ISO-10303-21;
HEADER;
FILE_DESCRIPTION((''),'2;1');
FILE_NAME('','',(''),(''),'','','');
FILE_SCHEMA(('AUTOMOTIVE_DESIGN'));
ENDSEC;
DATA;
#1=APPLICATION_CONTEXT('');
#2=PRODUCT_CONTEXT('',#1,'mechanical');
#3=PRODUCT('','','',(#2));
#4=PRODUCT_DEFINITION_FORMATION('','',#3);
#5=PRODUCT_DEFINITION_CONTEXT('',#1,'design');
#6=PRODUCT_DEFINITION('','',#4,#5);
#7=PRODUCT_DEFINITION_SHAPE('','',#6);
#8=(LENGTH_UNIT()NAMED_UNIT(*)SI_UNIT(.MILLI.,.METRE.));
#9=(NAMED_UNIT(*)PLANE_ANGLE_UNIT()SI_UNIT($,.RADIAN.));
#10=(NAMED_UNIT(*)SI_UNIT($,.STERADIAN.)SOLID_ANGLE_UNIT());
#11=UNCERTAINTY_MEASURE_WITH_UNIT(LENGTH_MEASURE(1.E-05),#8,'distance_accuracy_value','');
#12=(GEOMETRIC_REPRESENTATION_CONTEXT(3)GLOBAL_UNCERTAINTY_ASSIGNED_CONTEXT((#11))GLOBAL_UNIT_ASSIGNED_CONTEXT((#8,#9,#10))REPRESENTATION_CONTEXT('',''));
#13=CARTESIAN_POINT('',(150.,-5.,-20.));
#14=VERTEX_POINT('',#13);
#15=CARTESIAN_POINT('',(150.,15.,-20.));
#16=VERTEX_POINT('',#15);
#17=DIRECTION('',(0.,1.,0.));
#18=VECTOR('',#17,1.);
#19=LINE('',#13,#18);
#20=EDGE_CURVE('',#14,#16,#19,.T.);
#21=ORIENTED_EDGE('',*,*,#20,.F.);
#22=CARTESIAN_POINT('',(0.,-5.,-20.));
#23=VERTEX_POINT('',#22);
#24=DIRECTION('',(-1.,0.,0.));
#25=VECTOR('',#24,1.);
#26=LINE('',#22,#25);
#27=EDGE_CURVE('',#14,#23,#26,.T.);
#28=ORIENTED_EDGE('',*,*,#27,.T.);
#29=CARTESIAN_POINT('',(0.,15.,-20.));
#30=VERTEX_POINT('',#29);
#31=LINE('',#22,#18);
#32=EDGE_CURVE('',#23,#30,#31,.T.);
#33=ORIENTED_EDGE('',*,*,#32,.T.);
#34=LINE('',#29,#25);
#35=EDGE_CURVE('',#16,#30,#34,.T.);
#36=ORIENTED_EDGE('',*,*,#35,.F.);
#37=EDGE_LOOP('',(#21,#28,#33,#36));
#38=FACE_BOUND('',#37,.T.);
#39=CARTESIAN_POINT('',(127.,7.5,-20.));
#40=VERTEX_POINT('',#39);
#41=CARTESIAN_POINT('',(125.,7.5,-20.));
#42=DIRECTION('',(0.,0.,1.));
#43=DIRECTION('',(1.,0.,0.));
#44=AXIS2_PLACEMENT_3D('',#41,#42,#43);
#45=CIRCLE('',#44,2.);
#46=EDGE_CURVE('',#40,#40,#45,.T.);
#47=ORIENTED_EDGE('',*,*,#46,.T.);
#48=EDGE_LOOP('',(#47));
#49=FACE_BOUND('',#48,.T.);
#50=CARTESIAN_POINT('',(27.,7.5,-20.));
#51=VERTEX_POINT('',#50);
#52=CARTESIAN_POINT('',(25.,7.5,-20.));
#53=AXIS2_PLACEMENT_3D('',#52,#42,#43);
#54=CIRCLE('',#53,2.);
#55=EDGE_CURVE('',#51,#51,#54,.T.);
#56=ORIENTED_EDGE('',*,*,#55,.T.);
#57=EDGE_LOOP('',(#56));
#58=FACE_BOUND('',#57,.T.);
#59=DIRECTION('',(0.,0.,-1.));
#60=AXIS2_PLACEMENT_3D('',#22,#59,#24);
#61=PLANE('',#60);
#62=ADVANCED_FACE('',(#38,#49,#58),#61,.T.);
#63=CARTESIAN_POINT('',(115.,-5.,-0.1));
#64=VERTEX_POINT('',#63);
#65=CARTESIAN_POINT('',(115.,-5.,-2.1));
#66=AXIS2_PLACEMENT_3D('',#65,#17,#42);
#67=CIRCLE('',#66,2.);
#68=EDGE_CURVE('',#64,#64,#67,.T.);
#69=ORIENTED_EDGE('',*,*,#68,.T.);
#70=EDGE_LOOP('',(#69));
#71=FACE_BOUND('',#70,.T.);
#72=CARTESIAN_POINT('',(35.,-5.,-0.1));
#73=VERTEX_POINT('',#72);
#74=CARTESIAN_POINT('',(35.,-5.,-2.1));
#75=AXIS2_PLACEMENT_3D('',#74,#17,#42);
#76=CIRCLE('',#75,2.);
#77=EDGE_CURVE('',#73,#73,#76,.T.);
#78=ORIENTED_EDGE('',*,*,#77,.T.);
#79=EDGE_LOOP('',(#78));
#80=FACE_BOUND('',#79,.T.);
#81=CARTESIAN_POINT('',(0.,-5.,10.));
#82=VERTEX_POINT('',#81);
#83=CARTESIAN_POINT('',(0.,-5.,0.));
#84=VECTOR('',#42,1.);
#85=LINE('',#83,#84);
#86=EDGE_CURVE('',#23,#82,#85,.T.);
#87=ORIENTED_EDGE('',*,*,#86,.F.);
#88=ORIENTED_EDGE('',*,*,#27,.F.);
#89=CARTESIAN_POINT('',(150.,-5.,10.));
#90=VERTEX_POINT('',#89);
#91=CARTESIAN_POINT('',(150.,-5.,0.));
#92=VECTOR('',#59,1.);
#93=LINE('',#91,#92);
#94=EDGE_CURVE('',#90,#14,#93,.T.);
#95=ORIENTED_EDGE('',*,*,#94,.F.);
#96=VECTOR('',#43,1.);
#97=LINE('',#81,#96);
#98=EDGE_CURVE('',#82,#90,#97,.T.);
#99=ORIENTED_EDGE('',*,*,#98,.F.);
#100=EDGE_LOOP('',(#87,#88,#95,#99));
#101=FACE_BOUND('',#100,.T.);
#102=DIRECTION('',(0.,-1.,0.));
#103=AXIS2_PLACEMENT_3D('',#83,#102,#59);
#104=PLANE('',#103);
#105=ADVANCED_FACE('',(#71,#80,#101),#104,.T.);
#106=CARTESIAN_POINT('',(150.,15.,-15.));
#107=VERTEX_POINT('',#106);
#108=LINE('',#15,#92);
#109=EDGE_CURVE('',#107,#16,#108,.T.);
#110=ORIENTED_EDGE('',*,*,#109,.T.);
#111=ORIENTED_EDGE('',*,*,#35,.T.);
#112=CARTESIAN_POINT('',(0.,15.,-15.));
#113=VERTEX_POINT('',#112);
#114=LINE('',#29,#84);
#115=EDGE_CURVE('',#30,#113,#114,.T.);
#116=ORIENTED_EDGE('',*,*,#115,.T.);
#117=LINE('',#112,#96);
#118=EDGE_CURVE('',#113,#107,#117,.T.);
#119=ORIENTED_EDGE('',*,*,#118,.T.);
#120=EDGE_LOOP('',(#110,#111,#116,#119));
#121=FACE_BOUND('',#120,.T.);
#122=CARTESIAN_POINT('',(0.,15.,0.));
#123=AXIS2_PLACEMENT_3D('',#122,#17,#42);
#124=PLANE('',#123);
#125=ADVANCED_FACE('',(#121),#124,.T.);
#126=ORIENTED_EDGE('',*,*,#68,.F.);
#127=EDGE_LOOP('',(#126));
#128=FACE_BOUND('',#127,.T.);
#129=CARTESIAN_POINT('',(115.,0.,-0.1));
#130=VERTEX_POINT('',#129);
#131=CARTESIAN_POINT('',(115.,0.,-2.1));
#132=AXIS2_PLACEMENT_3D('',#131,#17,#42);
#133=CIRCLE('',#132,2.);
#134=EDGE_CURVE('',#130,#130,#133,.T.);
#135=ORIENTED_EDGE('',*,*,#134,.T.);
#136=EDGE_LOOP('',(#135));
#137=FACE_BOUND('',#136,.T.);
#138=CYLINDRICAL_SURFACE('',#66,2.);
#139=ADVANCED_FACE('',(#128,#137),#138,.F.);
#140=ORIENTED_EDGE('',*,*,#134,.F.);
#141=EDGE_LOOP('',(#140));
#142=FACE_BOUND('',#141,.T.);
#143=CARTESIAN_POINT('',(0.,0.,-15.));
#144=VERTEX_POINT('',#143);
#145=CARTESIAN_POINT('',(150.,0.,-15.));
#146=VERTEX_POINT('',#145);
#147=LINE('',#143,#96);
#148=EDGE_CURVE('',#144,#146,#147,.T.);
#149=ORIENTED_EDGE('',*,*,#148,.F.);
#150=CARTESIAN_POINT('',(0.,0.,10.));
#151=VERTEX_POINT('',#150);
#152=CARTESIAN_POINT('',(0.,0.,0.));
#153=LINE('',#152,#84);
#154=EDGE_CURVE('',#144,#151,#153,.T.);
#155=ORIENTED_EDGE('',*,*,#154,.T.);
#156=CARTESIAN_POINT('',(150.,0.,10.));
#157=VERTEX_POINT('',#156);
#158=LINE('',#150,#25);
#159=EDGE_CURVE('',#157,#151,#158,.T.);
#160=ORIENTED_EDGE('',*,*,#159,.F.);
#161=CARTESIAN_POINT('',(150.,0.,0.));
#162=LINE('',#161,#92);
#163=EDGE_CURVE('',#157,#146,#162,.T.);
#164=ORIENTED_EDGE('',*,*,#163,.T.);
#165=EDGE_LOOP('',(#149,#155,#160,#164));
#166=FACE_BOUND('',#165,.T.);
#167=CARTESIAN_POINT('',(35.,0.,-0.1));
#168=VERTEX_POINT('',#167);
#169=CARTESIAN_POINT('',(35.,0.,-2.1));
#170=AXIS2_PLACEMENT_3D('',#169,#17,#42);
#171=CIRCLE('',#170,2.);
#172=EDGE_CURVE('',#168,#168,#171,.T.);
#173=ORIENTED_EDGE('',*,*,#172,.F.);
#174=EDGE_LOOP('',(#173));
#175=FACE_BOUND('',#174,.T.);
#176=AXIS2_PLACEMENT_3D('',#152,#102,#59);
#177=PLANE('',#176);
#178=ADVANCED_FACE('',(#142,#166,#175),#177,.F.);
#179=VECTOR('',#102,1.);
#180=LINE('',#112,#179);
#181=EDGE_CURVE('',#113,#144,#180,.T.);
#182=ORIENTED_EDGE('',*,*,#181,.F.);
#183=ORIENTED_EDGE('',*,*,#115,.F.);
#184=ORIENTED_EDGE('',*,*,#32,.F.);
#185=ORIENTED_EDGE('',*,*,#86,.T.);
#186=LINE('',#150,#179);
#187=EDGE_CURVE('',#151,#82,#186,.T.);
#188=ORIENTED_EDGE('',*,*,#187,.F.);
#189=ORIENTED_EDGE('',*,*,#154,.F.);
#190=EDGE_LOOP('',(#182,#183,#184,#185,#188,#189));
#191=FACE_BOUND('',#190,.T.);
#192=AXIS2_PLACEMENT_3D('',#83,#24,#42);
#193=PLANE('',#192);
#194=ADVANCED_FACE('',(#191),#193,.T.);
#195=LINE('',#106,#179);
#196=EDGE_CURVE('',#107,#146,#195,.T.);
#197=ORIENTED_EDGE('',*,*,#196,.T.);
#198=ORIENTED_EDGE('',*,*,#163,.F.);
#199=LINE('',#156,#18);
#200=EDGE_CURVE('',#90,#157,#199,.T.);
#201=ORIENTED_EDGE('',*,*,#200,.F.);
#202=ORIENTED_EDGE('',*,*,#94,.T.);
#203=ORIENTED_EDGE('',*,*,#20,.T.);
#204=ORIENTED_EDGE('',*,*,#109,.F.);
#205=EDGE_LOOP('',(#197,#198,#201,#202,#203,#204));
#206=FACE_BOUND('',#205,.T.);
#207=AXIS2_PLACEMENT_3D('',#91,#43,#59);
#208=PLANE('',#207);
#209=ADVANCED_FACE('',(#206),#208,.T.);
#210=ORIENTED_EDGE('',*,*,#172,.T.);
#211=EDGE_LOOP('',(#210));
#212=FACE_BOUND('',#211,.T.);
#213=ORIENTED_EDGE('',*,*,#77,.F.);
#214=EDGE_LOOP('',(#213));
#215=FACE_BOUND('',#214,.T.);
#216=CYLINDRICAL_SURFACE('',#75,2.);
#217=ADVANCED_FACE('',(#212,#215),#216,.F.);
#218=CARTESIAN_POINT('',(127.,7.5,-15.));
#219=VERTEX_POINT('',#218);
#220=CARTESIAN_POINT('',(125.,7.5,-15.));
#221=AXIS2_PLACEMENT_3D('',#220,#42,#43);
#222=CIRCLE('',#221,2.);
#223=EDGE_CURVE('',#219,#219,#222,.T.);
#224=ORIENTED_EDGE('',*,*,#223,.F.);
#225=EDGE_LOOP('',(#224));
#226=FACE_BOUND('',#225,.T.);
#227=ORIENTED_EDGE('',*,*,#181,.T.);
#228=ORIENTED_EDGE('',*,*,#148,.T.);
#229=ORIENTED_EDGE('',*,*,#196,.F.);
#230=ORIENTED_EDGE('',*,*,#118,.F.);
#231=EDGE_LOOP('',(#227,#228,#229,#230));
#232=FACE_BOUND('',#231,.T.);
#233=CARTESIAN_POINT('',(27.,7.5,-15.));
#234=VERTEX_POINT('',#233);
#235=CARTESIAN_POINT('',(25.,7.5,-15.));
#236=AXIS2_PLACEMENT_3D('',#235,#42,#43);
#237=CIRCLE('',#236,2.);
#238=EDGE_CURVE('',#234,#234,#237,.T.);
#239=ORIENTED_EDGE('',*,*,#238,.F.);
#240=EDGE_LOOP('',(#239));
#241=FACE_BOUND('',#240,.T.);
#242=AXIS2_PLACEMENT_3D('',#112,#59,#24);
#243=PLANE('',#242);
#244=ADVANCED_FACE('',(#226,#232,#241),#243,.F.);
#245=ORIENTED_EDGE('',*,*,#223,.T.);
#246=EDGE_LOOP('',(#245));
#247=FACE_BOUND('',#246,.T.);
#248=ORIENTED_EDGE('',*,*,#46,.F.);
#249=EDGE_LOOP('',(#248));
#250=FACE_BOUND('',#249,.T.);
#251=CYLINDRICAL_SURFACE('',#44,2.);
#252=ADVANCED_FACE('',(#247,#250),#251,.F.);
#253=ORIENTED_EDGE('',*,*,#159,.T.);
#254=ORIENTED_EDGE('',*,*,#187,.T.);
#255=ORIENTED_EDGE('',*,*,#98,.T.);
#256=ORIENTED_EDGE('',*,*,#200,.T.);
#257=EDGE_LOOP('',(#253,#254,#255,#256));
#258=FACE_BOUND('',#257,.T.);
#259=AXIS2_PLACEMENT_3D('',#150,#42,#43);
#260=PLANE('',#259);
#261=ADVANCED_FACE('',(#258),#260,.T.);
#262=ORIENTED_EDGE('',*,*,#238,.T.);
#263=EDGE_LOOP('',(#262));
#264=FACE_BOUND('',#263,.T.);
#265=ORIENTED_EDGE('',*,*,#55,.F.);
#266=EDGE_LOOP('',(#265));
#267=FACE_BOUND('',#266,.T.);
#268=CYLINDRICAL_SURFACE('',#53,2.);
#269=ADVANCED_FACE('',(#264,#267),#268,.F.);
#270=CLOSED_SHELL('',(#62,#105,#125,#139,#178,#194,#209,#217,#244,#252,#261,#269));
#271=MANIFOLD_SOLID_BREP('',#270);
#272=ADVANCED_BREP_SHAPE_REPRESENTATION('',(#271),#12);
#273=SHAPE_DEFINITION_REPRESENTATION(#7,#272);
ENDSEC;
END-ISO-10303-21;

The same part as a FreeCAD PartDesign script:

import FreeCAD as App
import Part
import Sketcher
from FreeCAD import Vector

doc = App.newDocument("Part")
params = doc.addObject("Spreadsheet::Sheet", "Params")
for row, (alias, value) in enumerate([
    ("sketch1_width", "150 mm"),
    ("sketch1_height", "20 mm"),
    ("pad1_length", "5 mm"),
    ("sketch2_width", "150 mm"),
    ("sketch2_height", "5 mm"),
    ("pad2_length", "15 mm"),
    ("sketch3_diameter", "4 mm"),
    ("sketch4_diameter", "4 mm"),
    ("sketch5_width", "150 mm"),
    ("sketch5_height", "5 mm"),
    ("pad3_length", "10 mm"),
], start=1):
    params.set(f"A{row}", alias)
    params.set(f"B{row}", "=" + value)
    params.setAlias(f"B{row}", alias)

body = doc.addObject("PartDesign::Body", "Body")

# Sketch on XZ plane
sketch1 = body.newObject("Sketcher::SketchObject", "Sketch")
sketch1.AttachmentSupport = (doc.getObject("XZ_Plane"), [""])
sketch1.MapMode = "FlatFace"
sketch1.addGeometry([
    Part.LineSegment(Vector(0, -20, 0), Vector(0, 0, 0)),
    Part.LineSegment(Vector(0, 0, 0), Vector(150, 0, 0)),
    Part.LineSegment(Vector(150, 0, 0), Vector(150, -20, 0)),
    Part.LineSegment(Vector(150, -20, 0), Vector(0, -20, 0)),
], False)
sketch1.addConstraint([
    Sketcher.Constraint("Coincident", 0, 2, 1, 1),
    Sketcher.Constraint("Coincident", 1, 2, 2, 1),
    Sketcher.Constraint("Coincident", 2, 2, 3, 1),
    Sketcher.Constraint("Coincident", 3, 2, 0, 1),
    Sketcher.Constraint("Vertical", 0),
    Sketcher.Constraint("Horizontal", 1),
    Sketcher.Constraint("Vertical", 2),
    Sketcher.Constraint("Horizontal", 3),
    Sketcher.Constraint("Coincident", 0, 2, -1, 1),
    Sketcher.Constraint("DistanceX", 1, 1, 1, 2, 150.0),
    Sketcher.Constraint("DistanceY", 0, 1, 0, 2, 20.0),
])
sketch1.setExpression("Constraints[9]", "Params.sketch1_width")
sketch1.setExpression("Constraints[10]", "Params.sketch1_height")
pad1 = body.newObject("PartDesign::Pad", "Pad")
pad1.Profile = sketch1
pad1.setExpression("Length", "Params.pad1_length")

# Sketch on XZ plane
sketch2 = body.newObject("Sketcher::SketchObject", "Sketch001")
sketch2.AttachmentSupport = (doc.getObject("XZ_Plane"), [""])
sketch2.MapMode = "FlatFace"
sketch2.addGeometry([
    Part.LineSegment(Vector(0, -20, 0), Vector(0, -15, 0)),
    Part.LineSegment(Vector(0, -15, 0), Vector(150, -15, 0)),
    Part.LineSegment(Vector(150, -15, 0), Vector(150, -20, 0)),
    Part.LineSegment(Vector(150, -20, 0), Vector(0, -20, 0)),
], False)
sketch2.addConstraint([
    Sketcher.Constraint("Coincident", 0, 2, 1, 1),
    Sketcher.Constraint("Coincident", 1, 2, 2, 1),
    Sketcher.Constraint("Coincident", 2, 2, 3, 1),
    Sketcher.Constraint("Coincident", 3, 2, 0, 1),
    Sketcher.Constraint("Vertical", 0),
    Sketcher.Constraint("Horizontal", 1),
    Sketcher.Constraint("Vertical", 2),
    Sketcher.Constraint("Horizontal", 3),
    Sketcher.Constraint("PointOnObject", 0, 2, -2),
    Sketcher.Constraint("DistanceX", 1, 1, 1, 2, 150.0),
    Sketcher.Constraint("DistanceY", 0, 1, 0, 2, 5.0),
    Sketcher.Constraint("DistanceY", 0, 2, -1, 1, 15.0),
])
sketch2.setExpression("Constraints[9]", "Params.sketch2_width")
sketch2.setExpression("Constraints[10]", "Params.sketch2_height")
pad2 = body.newObject("PartDesign::Pad", "Pad001")
pad2.Profile = sketch2
pad2.setExpression("Length", "Params.pad2_length")
pad2.Reversed = True

# Sketch on XY plane
sketch3 = body.newObject("Sketcher::SketchObject", "Sketch002")
sketch3.AttachmentSupport = (doc.getObject("XY_Plane"), [""])
sketch3.MapMode = "FlatFace"
sketch3.AttachmentOffset = App.Placement(Vector(0, 0, -15), App.Rotation())
sketch3.addGeometry([
    Part.Circle(Vector(25, 7.5, 0), Vector(0, 0, 1), 2),
    Part.Circle(Vector(125, 7.5, 0), Vector(0, 0, 1), 2),
], False)
sketch3.addConstraint([
    Sketcher.Constraint("Equal", 0, 1),
    Sketcher.Constraint("Horizontal", 0, 3, 1, 3),
    Sketcher.Constraint("Diameter", 0, 4.0),
    Sketcher.Constraint("DistanceX", -1, 1, 0, 3, 25.0),
    Sketcher.Constraint("DistanceX", -1, 1, 1, 3, 125.0),
    Sketcher.Constraint("DistanceY", -1, 1, 0, 3, 7.5),
])
sketch3.setExpression("Constraints[2]", "Params.sketch3_diameter")
pocket1 = body.newObject("PartDesign::Pocket", "Pocket")
pocket1.Profile = sketch3
pocket1.Type = "ThroughAll"

# Sketch on XZ plane
sketch4 = body.newObject("Sketcher::SketchObject", "Sketch003")
sketch4.AttachmentSupport = (doc.getObject("XZ_Plane"), [""])
sketch4.MapMode = "FlatFace"
sketch4.addGeometry([
    Part.Circle(Vector(35, -2.1, 0), Vector(0, 0, 1), 2),
    Part.Circle(Vector(115, -2.1, 0), Vector(0, 0, 1), 2),
], False)
sketch4.addConstraint([
    Sketcher.Constraint("Equal", 0, 1),
    Sketcher.Constraint("Horizontal", 0, 3, 1, 3),
    Sketcher.Constraint("Diameter", 0, 4.0),
    Sketcher.Constraint("DistanceX", -1, 1, 0, 3, 35.0),
    Sketcher.Constraint("DistanceX", -1, 1, 1, 3, 115.0),
    Sketcher.Constraint("DistanceY", 0, 3, -1, 1, 2.1),
])
sketch4.setExpression("Constraints[2]", "Params.sketch4_diameter")
pocket2 = body.newObject("PartDesign::Pocket", "Pocket001")
pocket2.Profile = sketch4
pocket2.Type = "ThroughAll"
pocket2.Reversed = True

# Sketch on XY plane
sketch5 = body.newObject("Sketcher::SketchObject", "Sketch004")
sketch5.AttachmentSupport = (doc.getObject("XY_Plane"), [""])
sketch5.MapMode = "FlatFace"
sketch5.addGeometry([
    Part.LineSegment(Vector(0, 0, 0), Vector(0, -5, 0)),
    Part.LineSegment(Vector(0, -5, 0), Vector(150, -5, 0)),
    Part.LineSegment(Vector(150, -5, 0), Vector(150, 0, 0)),
    Part.LineSegment(Vector(150, 0, 0), Vector(0, 0, 0)),
], False)
sketch5.addConstraint([
    Sketcher.Constraint("Coincident", 0, 2, 1, 1),
    Sketcher.Constraint("Coincident", 1, 2, 2, 1),
    Sketcher.Constraint("Coincident", 2, 2, 3, 1),
    Sketcher.Constraint("Coincident", 3, 2, 0, 1),
    Sketcher.Constraint("Vertical", 0),
    Sketcher.Constraint("Horizontal", 1),
    Sketcher.Constraint("Vertical", 2),
    Sketcher.Constraint("Horizontal", 3),
    Sketcher.Constraint("Coincident", 3, 2, -1, 1),
    Sketcher.Constraint("DistanceX", 1, 1, 1, 2, 150.0),
    Sketcher.Constraint("DistanceY", 0, 2, 0, 1, 5.0),
])
sketch5.setExpression("Constraints[9]", "Params.sketch5_width")
sketch5.setExpression("Constraints[10]", "Params.sketch5_height")
pad3 = body.newObject("PartDesign::Pad", "Pad002")
pad3.Profile = sketch5
pad3.setExpression("Length", "Params.pad3_length")

doc.recompute()
